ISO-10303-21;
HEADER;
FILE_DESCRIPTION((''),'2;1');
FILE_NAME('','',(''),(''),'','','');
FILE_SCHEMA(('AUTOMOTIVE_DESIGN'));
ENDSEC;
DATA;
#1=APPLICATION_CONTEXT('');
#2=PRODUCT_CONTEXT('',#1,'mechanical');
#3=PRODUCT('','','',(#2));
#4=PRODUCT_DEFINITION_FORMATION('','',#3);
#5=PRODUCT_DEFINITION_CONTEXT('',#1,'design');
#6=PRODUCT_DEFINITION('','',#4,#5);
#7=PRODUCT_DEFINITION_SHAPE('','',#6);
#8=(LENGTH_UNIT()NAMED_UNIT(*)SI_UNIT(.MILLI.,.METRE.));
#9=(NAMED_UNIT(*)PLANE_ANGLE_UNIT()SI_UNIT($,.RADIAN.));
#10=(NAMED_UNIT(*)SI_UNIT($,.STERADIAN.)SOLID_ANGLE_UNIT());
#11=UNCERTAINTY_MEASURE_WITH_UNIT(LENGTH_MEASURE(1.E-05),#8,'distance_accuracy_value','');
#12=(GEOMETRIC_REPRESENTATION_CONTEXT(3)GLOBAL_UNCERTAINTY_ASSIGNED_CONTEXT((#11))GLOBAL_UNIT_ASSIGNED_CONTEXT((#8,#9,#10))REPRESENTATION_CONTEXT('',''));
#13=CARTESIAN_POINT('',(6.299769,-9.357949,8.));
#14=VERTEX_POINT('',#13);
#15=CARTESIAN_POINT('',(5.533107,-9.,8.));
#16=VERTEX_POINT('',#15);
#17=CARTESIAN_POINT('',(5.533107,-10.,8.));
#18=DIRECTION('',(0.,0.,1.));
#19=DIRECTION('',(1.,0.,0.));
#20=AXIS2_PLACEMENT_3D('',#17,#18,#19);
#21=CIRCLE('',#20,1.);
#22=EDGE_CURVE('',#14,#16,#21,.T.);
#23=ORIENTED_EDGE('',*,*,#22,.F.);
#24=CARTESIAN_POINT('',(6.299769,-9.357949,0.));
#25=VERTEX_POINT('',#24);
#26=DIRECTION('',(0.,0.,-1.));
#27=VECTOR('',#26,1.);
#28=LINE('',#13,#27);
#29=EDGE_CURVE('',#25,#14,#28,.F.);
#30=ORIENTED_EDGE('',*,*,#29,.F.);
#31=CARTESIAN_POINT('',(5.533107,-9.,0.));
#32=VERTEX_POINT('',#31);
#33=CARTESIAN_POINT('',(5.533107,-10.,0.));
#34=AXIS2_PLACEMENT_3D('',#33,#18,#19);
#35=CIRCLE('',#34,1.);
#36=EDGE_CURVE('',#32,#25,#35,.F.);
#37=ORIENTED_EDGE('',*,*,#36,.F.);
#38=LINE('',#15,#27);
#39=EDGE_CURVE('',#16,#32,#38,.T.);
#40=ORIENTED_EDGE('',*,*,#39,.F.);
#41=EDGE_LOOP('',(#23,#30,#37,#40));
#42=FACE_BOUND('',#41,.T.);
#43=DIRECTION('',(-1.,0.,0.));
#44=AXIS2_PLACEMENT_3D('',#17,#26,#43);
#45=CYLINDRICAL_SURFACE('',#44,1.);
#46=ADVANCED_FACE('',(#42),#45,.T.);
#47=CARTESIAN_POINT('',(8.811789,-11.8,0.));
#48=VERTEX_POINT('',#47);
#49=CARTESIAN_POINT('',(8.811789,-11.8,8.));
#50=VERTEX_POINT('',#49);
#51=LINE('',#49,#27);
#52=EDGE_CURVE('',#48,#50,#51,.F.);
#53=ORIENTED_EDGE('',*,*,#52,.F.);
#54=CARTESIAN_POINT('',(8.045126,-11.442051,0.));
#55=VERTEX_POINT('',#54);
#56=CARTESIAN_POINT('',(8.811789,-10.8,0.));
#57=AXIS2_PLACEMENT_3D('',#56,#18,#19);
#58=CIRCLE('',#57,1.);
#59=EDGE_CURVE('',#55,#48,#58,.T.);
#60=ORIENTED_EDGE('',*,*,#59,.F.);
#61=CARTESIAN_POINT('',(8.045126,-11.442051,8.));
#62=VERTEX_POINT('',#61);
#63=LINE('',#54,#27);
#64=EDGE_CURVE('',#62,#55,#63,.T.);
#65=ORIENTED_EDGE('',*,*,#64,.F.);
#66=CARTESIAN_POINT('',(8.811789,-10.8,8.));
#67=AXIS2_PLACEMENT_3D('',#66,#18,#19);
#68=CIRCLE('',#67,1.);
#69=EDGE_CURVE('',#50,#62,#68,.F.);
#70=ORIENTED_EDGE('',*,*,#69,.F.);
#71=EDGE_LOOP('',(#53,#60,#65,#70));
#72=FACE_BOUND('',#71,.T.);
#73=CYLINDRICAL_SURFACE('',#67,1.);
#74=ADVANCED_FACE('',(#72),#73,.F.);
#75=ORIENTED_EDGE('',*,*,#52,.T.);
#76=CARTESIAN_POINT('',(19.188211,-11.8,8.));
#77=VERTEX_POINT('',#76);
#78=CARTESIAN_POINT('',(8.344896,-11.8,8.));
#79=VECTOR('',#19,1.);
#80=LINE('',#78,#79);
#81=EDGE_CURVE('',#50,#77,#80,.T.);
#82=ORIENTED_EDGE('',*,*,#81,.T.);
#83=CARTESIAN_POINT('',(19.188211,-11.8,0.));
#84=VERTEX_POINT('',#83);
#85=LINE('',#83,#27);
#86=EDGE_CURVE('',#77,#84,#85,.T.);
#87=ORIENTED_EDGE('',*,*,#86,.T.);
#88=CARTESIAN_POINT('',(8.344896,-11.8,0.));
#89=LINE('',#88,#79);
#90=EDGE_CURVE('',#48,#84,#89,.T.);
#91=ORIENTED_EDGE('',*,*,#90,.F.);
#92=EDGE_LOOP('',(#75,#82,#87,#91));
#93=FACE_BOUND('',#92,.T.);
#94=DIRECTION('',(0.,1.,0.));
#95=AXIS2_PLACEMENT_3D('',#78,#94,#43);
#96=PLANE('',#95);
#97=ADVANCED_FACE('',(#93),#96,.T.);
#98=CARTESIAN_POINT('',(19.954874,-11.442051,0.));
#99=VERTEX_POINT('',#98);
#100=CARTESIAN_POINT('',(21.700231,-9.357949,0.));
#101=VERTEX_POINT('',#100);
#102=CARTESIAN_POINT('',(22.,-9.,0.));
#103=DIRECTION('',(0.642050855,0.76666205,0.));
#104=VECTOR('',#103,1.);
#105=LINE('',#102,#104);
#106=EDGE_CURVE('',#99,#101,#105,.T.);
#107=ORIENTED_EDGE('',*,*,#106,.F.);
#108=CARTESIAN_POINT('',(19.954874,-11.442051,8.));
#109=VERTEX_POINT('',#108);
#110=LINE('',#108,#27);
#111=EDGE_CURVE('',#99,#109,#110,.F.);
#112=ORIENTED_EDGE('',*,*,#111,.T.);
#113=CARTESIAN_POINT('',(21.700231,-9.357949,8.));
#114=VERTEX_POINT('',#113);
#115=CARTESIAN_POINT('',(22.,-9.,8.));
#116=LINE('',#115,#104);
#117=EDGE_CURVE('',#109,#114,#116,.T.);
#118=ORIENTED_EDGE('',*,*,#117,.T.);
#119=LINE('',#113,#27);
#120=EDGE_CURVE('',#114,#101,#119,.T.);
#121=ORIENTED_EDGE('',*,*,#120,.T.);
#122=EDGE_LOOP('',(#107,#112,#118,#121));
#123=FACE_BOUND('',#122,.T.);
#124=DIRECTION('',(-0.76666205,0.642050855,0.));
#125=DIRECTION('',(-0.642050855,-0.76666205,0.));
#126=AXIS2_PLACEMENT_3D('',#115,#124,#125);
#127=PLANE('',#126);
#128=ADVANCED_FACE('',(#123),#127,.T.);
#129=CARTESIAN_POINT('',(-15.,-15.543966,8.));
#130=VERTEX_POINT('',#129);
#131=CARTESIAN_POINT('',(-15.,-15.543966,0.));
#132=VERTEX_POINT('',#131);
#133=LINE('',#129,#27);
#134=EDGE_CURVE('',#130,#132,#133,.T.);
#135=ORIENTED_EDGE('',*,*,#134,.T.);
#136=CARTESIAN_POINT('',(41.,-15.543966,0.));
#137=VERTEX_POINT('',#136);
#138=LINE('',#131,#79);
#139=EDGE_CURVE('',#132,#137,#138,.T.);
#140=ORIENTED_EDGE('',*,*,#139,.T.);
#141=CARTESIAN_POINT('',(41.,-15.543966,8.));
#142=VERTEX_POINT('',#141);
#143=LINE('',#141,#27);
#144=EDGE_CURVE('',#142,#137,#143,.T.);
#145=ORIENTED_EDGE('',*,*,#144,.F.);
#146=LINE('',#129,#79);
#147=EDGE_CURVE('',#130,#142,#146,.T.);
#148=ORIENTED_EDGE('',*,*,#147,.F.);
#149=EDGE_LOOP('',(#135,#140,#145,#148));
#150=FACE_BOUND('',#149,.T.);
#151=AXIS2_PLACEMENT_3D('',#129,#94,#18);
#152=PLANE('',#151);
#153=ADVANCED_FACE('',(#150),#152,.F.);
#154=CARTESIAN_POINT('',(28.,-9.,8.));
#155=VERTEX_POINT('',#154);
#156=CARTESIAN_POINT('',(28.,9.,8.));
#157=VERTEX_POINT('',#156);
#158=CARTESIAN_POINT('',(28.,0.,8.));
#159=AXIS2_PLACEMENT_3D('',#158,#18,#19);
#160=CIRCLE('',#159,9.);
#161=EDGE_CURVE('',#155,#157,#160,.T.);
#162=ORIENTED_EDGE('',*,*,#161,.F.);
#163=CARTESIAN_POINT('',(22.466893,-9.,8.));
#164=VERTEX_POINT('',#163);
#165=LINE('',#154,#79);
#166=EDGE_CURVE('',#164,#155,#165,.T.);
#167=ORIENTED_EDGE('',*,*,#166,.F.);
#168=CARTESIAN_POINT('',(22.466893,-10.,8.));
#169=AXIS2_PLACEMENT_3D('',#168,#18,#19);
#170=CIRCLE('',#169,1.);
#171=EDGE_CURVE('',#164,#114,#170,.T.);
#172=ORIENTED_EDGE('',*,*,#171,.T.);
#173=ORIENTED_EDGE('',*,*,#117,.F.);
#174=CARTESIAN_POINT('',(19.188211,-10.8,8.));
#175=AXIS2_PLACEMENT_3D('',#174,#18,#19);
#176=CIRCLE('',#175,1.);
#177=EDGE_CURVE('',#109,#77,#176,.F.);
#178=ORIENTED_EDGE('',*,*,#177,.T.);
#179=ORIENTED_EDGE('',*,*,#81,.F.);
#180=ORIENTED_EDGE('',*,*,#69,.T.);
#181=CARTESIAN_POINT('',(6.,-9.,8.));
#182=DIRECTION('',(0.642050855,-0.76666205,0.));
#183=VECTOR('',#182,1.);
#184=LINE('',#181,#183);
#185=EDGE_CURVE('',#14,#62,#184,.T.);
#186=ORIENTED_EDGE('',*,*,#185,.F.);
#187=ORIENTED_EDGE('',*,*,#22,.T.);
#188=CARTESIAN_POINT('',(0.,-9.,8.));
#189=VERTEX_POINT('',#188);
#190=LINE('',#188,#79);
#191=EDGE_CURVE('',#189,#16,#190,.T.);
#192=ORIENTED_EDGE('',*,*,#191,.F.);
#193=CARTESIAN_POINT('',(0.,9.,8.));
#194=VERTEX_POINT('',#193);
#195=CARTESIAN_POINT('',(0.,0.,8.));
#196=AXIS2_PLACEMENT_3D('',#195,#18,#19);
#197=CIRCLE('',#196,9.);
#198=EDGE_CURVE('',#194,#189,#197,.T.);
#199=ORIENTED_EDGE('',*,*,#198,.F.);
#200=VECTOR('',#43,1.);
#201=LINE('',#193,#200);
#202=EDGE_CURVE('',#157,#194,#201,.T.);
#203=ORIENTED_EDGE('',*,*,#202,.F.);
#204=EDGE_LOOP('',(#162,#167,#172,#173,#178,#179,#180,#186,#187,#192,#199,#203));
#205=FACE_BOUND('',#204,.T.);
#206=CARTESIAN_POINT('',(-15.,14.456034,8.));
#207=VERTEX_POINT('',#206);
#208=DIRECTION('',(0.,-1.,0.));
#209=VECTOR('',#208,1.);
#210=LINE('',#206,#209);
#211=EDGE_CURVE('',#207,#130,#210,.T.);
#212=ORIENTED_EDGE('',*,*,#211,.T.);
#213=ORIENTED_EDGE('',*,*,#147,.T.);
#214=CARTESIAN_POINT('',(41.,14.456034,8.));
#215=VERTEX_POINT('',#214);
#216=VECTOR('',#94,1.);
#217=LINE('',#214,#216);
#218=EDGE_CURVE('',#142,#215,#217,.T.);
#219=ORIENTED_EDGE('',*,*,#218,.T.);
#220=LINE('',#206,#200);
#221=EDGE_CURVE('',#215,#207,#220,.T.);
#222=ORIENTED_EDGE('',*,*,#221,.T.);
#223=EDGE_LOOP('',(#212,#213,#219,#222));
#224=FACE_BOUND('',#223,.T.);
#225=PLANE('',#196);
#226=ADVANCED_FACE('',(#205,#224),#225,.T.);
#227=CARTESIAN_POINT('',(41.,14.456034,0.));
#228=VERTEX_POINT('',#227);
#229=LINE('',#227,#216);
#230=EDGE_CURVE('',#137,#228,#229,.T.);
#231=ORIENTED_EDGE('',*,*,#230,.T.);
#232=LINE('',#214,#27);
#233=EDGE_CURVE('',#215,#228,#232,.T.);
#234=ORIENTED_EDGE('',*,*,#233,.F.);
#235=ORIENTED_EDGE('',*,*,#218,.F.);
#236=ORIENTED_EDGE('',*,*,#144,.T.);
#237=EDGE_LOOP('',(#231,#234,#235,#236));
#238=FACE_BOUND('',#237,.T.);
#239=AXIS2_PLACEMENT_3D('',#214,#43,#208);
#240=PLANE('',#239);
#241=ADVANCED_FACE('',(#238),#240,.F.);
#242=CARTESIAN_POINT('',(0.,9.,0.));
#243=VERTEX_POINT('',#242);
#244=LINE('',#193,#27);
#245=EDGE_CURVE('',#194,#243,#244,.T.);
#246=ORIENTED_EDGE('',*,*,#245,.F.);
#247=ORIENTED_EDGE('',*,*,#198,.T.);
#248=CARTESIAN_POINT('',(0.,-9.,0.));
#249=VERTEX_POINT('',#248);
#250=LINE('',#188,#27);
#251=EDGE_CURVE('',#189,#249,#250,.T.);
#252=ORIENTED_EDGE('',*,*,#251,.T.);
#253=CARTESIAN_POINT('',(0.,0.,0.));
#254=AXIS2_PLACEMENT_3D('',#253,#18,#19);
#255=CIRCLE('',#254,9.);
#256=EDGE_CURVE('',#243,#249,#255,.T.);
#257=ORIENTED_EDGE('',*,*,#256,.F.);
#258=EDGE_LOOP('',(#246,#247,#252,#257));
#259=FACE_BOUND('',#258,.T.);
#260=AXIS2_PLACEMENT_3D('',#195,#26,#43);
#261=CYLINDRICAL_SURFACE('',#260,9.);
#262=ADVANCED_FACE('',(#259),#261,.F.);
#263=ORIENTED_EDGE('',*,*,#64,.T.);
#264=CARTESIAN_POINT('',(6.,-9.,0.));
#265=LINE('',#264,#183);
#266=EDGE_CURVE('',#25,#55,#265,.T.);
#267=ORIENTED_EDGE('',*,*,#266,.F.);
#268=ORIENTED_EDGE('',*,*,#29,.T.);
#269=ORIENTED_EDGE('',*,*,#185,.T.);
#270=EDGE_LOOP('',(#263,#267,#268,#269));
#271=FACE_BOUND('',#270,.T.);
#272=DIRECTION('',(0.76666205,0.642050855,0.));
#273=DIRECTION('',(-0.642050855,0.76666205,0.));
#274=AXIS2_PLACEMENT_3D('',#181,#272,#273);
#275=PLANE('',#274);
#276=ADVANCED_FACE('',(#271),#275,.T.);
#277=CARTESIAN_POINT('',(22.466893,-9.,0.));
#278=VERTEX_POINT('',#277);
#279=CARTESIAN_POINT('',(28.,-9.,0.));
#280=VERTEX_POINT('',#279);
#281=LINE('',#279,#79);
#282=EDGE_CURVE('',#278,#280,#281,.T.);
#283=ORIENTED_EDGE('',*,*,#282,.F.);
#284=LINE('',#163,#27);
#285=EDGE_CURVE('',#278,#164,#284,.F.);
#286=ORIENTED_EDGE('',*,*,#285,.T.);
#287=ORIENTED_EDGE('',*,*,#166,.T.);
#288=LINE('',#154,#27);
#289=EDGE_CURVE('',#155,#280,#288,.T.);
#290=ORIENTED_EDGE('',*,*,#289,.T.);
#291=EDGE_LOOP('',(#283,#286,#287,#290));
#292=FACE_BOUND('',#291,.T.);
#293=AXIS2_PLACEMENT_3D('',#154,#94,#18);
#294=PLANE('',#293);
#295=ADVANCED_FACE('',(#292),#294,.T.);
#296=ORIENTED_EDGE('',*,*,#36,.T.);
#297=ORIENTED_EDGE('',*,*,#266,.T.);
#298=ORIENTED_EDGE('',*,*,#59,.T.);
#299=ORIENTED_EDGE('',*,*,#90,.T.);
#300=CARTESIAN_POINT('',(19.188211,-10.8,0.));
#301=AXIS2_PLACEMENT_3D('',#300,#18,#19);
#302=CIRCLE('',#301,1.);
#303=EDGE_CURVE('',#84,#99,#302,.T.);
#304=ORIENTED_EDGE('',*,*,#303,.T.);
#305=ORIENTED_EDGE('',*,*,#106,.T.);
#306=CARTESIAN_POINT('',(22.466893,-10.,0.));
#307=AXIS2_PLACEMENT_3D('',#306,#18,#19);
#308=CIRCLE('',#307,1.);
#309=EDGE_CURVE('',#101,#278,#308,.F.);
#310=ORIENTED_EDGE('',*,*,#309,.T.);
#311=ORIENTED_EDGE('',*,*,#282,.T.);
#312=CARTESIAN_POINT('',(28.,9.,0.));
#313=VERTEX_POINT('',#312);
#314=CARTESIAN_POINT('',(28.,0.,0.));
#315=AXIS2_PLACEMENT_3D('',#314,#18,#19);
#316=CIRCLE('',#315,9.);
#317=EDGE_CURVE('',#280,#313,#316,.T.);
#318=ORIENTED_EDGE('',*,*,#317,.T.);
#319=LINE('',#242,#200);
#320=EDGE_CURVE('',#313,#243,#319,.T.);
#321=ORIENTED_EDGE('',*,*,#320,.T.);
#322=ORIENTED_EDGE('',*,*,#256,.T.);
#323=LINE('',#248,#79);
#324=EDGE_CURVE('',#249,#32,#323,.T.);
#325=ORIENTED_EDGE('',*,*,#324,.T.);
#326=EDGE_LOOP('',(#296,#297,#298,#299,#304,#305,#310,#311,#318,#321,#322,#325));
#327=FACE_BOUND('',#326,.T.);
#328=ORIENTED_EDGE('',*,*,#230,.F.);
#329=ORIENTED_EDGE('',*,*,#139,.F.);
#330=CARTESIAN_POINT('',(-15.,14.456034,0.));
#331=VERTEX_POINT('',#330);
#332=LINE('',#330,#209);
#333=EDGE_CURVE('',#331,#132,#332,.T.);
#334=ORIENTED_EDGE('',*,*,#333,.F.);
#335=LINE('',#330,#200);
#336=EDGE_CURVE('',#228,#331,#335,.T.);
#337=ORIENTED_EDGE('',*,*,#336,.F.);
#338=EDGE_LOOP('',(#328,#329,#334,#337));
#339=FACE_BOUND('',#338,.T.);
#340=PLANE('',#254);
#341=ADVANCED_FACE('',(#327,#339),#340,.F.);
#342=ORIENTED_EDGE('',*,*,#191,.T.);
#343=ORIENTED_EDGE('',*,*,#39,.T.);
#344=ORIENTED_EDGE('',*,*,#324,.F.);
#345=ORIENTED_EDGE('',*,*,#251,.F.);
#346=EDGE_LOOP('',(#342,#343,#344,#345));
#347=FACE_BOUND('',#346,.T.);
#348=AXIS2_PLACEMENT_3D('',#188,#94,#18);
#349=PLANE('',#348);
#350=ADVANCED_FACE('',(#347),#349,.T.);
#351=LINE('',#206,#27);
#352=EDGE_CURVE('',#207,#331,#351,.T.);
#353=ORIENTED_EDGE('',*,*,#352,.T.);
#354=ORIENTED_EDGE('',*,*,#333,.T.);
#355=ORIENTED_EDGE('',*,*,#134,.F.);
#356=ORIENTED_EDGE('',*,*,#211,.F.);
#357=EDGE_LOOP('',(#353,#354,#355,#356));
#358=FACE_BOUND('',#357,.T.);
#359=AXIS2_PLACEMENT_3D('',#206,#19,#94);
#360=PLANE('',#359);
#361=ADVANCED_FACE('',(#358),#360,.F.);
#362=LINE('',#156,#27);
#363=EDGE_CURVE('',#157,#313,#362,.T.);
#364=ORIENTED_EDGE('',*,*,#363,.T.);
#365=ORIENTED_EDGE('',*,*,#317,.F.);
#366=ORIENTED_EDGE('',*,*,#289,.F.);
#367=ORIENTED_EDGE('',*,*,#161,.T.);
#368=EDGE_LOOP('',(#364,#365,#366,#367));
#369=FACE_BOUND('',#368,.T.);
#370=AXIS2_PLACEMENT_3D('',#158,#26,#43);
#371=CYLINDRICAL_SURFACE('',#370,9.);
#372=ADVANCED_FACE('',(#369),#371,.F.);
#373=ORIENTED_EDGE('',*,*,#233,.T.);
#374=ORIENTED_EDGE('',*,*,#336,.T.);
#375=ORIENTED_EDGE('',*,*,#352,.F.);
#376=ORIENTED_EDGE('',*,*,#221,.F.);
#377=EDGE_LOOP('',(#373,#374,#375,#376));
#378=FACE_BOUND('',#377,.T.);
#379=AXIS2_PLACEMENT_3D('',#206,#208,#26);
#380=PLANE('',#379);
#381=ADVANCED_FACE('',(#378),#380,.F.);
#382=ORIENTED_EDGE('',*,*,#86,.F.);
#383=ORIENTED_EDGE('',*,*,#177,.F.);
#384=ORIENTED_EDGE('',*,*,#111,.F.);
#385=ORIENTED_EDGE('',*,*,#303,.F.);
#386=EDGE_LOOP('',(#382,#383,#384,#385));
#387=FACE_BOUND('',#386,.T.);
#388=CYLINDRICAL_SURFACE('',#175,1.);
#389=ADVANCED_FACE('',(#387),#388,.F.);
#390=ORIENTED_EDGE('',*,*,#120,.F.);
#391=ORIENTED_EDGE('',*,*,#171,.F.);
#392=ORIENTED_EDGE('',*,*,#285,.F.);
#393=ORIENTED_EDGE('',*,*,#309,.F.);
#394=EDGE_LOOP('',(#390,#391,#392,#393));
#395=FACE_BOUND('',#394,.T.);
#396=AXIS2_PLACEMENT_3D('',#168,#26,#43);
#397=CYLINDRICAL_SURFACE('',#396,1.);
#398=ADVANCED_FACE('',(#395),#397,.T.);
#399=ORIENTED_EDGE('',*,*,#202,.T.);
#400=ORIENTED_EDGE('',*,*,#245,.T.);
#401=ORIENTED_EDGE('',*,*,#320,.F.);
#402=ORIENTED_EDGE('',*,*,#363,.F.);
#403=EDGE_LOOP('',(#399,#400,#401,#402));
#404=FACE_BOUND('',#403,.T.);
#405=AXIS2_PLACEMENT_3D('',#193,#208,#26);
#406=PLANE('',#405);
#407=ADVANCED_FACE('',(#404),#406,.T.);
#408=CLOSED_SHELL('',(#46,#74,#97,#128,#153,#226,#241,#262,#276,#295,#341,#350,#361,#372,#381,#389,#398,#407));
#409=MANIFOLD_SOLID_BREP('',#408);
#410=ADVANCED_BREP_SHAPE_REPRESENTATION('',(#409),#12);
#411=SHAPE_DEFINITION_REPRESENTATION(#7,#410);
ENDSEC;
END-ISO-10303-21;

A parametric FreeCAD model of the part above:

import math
import FreeCAD as App
import Part
import Sketcher

V = App.Vector


def edges_at(feature, points):
    """Names of the edges that pass closest to the given points."""
    edges = feature.Shape.Edges
    near = lambda p: min(range(len(edges)), key=lambda i: edges[i].distToShape(Part.Vertex(*p))[0])
    return sorted({f"Edge{near(p) + 1}" for p in points})

doc = App.newDocument("Part")
body = doc.addObject("PartDesign::Body", "Body")

# Sketch on XY plane
sketch1 = body.newObject("Sketcher::SketchObject", "Sketch")
sketch1.AttachmentSupport = (doc.getObject("XY_Plane"), [""])
sketch1.MapMode = "FlatFace"
sketch1.addGeometry([
    Part.LineSegment(V(-15, 14.5, 0), V(-15, -15.5, 0)),  # 0
    Part.LineSegment(V(-15, -15.5, 0), V(41, -15.5, 0)),  # 1
    Part.LineSegment(V(41, -15.5, 0), V(41, 14.5, 0)),  # 2
    Part.LineSegment(V(41, 14.5, 0), V(-15, 14.5, 0)),  # 3
    Part.ArcOfCircle(Part.Circle(V(0, 0, 0), V(0, 0, 1), 9), math.radians(90), math.radians(270)),  # 4
    Part.LineSegment(V(0, 9, 0), V(28, 9, 0)),  # 5
    Part.ArcOfCircle(Part.Circle(V(28, 0, 0), V(0, 0, 1), 9), math.radians(-90), math.radians(90)),  # 6
    Part.LineSegment(V(28, -9, 0), V(22, -9, 0)),  # 7
    Part.LineSegment(V(22, -9, 0), V(19.7, -11.8, 0)),  # 8
    Part.LineSegment(V(19.7, -11.8, 0), V(8.3, -11.8, 0)),  # 9
    Part.LineSegment(V(8.3, -11.8, 0), V(6, -9, 0)),  # 10
    Part.LineSegment(V(6, -9, 0), V(0, -9, 0)),  # 11
], False)
sketch1.addConstraint([
    Sketcher.Constraint("Coincident", 0, 2, 1, 1),
    Sketcher.Constraint("Coincident", 1, 2, 2, 1),
    Sketcher.Constraint("Coincident", 2, 2, 3, 1),
    Sketcher.Constraint("Coincident", 3, 2, 0, 1),
    Sketcher.Constraint("Tangent", 4, 1, 5, 1),
    Sketcher.Constraint("Tangent", 5, 2, 6, 2),
    Sketcher.Constraint("Tangent", 6, 1, 7, 1),
    Sketcher.Constraint("Coincident", 7, 2, 8, 1),
    Sketcher.Constraint("Coincident", 8, 2, 9, 1),
    Sketcher.Constraint("Coincident", 9, 2, 10, 1),
    Sketcher.Constraint("Coincident", 10, 2, 11, 1),
    Sketcher.Constraint("Tangent", 11, 2, 4, 2),
    Sketcher.Constraint("Vertical", 0),
    Sketcher.Constraint("Horizontal", 1),
    Sketcher.Constraint("Vertical", 2),
    Sketcher.Constraint("Horizontal", 3),
    Sketcher.Constraint("Horizontal", 5),
    Sketcher.Constraint("Horizontal", 7),
    Sketcher.Constraint("Horizontal", 9),
    Sketcher.Constraint("Horizontal", 11),
    Sketcher.Constraint("Coincident", 4, 3, -1, 1),
    Sketcher.Constraint("Equal", 4, 6),
    Sketcher.Constraint("Equal", 7, 11),
    Sketcher.Constraint("Equal", 8, 10),
    Sketcher.Constraint("Radius", 4, 9.0),
    Sketcher.Constraint("DistanceX", 1, 1, 1, 2, 56.0),
    Sketcher.Constraint("DistanceX", 5, 1, 5, 2, 28.0),
    Sketcher.Constraint("DistanceX", 7, 2, 7, 1, 6.0),
    Sketcher.Constraint("DistanceY", 0, 2, 0, 1, 30.0),
    Sketcher.Constraint("DistanceX", 0, 2, -1, 1, 15.0),
    Sketcher.Constraint("DistanceY", 8, 2, -1, 1, 11.8),
    Sketcher.Constraint("DistanceX", 9, 2, 9, 1, 11.310209),
    Sketcher.Constraint("DistanceY", 0, 2, -1, 1, 15.543966),
])
pad1 = body.newObject("PartDesign::Pad", "Pad")
pad1.Profile = sketch1
pad1.Length = 8
doc.recompute()

fillet = body.newObject("PartDesign::Fillet", "Fillet")
fillet.Base = (pad1, edges_at(pad1, [
    (6, -9, 4),
    (8.345, -11.8, 4),
    (19.655, -11.8, 4),
    (22, -9, 4),
]))
fillet.Radius = 1

doc.recompute()
